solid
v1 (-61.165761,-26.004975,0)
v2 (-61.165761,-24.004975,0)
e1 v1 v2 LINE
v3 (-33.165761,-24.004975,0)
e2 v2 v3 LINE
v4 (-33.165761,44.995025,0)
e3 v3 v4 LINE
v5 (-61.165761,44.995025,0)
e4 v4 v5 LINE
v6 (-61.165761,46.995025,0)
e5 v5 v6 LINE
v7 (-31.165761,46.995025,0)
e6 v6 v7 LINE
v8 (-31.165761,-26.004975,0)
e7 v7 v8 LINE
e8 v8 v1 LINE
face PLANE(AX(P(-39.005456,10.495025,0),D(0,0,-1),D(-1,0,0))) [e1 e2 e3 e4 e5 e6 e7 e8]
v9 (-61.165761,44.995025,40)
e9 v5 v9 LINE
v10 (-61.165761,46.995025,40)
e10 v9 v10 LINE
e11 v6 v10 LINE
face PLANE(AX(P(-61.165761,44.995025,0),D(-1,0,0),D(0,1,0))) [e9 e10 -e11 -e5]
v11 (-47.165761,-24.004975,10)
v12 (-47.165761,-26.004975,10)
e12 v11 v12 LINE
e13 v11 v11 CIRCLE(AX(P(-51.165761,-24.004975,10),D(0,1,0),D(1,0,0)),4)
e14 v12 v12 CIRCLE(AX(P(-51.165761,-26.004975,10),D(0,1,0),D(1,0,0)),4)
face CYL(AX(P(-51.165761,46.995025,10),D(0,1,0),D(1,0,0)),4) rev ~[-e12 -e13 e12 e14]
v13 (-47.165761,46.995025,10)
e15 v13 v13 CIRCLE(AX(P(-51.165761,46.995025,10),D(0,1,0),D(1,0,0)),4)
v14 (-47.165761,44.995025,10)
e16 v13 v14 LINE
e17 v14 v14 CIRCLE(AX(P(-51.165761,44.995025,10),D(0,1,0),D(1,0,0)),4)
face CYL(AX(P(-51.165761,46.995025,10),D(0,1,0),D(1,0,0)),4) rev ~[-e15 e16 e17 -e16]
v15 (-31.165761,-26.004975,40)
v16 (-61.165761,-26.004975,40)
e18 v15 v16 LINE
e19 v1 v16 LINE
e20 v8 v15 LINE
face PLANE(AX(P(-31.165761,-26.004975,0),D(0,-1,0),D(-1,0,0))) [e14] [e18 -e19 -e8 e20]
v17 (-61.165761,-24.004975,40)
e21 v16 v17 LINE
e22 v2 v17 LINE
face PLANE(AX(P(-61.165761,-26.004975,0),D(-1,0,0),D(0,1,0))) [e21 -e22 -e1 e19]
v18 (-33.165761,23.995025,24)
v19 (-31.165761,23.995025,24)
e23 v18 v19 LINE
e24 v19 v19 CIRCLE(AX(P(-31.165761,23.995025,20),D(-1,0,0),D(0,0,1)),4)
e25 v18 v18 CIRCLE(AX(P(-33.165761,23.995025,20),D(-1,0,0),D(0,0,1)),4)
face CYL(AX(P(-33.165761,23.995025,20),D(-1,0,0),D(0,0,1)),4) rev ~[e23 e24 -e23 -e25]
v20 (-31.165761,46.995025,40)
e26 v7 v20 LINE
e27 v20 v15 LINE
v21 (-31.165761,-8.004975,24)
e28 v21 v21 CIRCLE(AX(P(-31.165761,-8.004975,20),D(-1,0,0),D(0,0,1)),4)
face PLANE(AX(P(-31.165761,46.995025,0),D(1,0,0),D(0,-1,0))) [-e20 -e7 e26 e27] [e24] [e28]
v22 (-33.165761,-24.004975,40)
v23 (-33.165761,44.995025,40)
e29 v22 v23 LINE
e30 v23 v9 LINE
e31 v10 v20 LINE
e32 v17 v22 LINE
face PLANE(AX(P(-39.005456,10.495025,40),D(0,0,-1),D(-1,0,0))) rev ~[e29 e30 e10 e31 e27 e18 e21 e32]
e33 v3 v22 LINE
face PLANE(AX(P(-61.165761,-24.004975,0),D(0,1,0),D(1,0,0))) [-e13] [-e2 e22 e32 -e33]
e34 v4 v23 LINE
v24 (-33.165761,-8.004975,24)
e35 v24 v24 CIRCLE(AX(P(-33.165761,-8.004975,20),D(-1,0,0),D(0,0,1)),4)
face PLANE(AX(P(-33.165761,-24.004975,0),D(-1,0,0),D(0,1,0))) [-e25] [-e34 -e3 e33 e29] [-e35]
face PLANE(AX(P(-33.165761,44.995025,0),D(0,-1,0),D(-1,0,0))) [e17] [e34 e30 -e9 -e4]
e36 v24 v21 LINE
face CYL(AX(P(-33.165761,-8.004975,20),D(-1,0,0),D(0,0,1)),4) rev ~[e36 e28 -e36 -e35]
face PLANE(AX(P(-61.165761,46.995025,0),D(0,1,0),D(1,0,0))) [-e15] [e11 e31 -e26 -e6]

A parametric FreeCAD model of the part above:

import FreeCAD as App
import Part
import Sketcher

V = App.Vector

doc = App.newDocument("Part")
params = doc.addObject("Spreadsheet::Sheet", "Params")
for row, (alias, value) in enumerate([
    ("sketch1_width", "30 mm"),
    ("sketch1_width2", "28 mm"),
    ("sketch1_height", "2 mm"),
    ("sketch1_height2", "69 mm"),
    ("pad1_length", "40 mm"),
    ("sketch2_diameter", "8 mm"),
    ("pocket1_length", "40 mm"),
    ("sketch3_diameter", "8 mm"),
    ("pocket2_length", "96 mm"),
], start=1):
    params.set(f"A{row}", alias)
    params.set(f"B{row}", "=" + value)
    params.setAlias(f"B{row}", alias)

body = doc.addObject("PartDesign::Body", "Body")

# Sketch on XY plane
sketch1 = body.newObject("Sketcher::SketchObject", "Sketch")
sketch1.AttachmentSupport = (doc.getObject("XY_Plane"), [""])
sketch1.MapMode = "FlatFace"
sketch1.addGeometry([
    Part.LineSegment(V(-31.2, 47, 0), V(-61.2, 47, 0)),  # 0
    Part.LineSegment(V(-61.2, 47, 0), V(-61.2, 45, 0)),  # 1
    Part.LineSegment(V(-61.2, 45, 0), V(-33.2, 45, 0)),  # 2
    Part.LineSegment(V(-33.2, 45, 0), V(-33.2, -24, 0)),  # 3
    Part.LineSegment(V(-33.2, -24, 0), V(-61.2, -24, 0)),  # 4
    Part.LineSegment(V(-61.2, -24, 0), V(-61.2, -26, 0)),  # 5
    Part.LineSegment(V(-61.2, -26, 0), V(-31.2, -26, 0)),  # 6
    Part.LineSegment(V(-31.2, -26, 0), V(-31.2, 47, 0)),  # 7
], False)
sketch1.addConstraint([
    Sketcher.Constraint("Coincident", 0, 2, 1, 1),
    Sketcher.Constraint("Coincident", 1, 2, 2, 1),
    Sketcher.Constraint("Coincident", 2, 2, 3, 1),
    Sketcher.Constraint("Coincident", 3, 2, 4, 1),
    Sketcher.Constraint("Coincident", 4, 2, 5, 1),
    Sketcher.Constraint("Coincident", 5, 2, 6, 1),
    Sketcher.Constraint("Coincident", 6, 2, 7, 1),
    Sketcher.Constraint("Coincident", 7, 2, 0, 1),
    Sketcher.Constraint("Horizontal", 0),
    Sketcher.Constraint("Vertical", 1),
    Sketcher.Constraint("Horizontal", 2),
    Sketcher.Constraint("Vertical", 3),
    Sketcher.Constraint("Horizontal", 4),
    Sketcher.Constraint("Vertical", 5),
    Sketcher.Constraint("Horizontal", 6),
    Sketcher.Constraint("Vertical", 7),
    Sketcher.Constraint("Vertical", 1, 2, 4, 2),
    Sketcher.Constraint("Equal", 1, 5),
    Sketcher.Constraint("DistanceX", 0, 2, 0, 1, 30.0),
    Sketcher.Constraint("DistanceX", 2, 1, 2, 2, 28.0),
    Sketcher.Constraint("DistanceY", 1, 2, 1, 1, 2.0),
    Sketcher.Constraint("DistanceY", 3, 2, 3, 1, 69.0),
    Sketcher.Constraint("DistanceX", 0, 2, -1, 1, 61.165761),
    Sketcher.Constraint("DistanceY", -1, 1, 0, 2, 46.995025),
])
sketch1.setExpression("Constraints[18]", "Params.sketch1_width")
sketch1.setExpression("Constraints[19]", "Params.sketch1_width2")
sketch1.setExpression("Constraints[20]", "Params.sketch1_height")
sketch1.setExpression("Constraints[21]", "Params.sketch1_height2")
pad1 = body.newObject("PartDesign::Pad", "Pad")
pad1.Profile = sketch1
pad1.setExpression("Length", "Params.pad1_length")

# Sketch on YZ plane
sketch2 = body.newObject("Sketcher::SketchObject", "Sketch001")
sketch2.AttachmentSupport = (doc.getObject("YZ_Plane"), [""])
sketch2.MapMode = "FlatFace"
sketch2.AttachmentOffset = App.Placement(V(0, 0, -33.165761), App.Rotation())
sketch2.addGeometry([
    Part.Circle(V(24, 20, 0), V(0, 0, 1), 4),
    Part.Circle(V(-8, 20, 0), V(0, 0, 1), 4),
], False)
sketch2.addConstraint([
    Sketcher.Constraint("Equal", 0, 1),
    Sketcher.Constraint("Horizontal", 0, 3, 1, 3),
    Sketcher.Constraint("Diameter", 0, 8.0),
    Sketcher.Constraint("DistanceY", -1, 1, 0, 3, 20.0),
    Sketcher.Constraint("DistanceX", 1, 3, 0, 3, 32.0),
    Sketcher.Constraint("DistanceX", -1, 1, 0, 3, 23.995025),
])
sketch2.setExpression("Constraints[2]", "Params.sketch2_diameter")
pocket1 = body.newObject("PartDesign::Pocket", "Pocket")
pocket1.Profile = sketch2
pocket1.setExpression("Length", "Params.pocket1_length")
pocket1.Reversed = True

# Sketch on XZ plane
sketch3 = body.newObject("Sketcher::SketchObject", "Sketch002")
sketch3.AttachmentSupport = (doc.getObject("XZ_Plane"), [""])
sketch3.MapMode = "FlatFace"
sketch3.AttachmentOffset = App.Placement(V(0, 0, -46.995025), App.Rotation())
sketch3.addGeometry(Part.Circle(V(-51.2, 10, 0), V(0, 0, 1), 4), False)
sketch3.addConstraint([
    Sketcher.Constraint("Diameter", 0, 8.0),
    Sketcher.Constraint("DistanceY", -1, 1, 0, 3, 10.0),
    Sketcher.Constraint("DistanceX", 0, 3, -1, 1, 51.165761),
])
sketch3.setExpression("Constraints[0]", "Params.sketch3_diameter")
pocket2 = body.newObject("PartDesign::Pocket", "Pocket001")
pocket2.Profile = sketch3
pocket2.setExpression("Length", "Params.pocket2_length")
pocket2.Reversed = True

doc.recompute()
